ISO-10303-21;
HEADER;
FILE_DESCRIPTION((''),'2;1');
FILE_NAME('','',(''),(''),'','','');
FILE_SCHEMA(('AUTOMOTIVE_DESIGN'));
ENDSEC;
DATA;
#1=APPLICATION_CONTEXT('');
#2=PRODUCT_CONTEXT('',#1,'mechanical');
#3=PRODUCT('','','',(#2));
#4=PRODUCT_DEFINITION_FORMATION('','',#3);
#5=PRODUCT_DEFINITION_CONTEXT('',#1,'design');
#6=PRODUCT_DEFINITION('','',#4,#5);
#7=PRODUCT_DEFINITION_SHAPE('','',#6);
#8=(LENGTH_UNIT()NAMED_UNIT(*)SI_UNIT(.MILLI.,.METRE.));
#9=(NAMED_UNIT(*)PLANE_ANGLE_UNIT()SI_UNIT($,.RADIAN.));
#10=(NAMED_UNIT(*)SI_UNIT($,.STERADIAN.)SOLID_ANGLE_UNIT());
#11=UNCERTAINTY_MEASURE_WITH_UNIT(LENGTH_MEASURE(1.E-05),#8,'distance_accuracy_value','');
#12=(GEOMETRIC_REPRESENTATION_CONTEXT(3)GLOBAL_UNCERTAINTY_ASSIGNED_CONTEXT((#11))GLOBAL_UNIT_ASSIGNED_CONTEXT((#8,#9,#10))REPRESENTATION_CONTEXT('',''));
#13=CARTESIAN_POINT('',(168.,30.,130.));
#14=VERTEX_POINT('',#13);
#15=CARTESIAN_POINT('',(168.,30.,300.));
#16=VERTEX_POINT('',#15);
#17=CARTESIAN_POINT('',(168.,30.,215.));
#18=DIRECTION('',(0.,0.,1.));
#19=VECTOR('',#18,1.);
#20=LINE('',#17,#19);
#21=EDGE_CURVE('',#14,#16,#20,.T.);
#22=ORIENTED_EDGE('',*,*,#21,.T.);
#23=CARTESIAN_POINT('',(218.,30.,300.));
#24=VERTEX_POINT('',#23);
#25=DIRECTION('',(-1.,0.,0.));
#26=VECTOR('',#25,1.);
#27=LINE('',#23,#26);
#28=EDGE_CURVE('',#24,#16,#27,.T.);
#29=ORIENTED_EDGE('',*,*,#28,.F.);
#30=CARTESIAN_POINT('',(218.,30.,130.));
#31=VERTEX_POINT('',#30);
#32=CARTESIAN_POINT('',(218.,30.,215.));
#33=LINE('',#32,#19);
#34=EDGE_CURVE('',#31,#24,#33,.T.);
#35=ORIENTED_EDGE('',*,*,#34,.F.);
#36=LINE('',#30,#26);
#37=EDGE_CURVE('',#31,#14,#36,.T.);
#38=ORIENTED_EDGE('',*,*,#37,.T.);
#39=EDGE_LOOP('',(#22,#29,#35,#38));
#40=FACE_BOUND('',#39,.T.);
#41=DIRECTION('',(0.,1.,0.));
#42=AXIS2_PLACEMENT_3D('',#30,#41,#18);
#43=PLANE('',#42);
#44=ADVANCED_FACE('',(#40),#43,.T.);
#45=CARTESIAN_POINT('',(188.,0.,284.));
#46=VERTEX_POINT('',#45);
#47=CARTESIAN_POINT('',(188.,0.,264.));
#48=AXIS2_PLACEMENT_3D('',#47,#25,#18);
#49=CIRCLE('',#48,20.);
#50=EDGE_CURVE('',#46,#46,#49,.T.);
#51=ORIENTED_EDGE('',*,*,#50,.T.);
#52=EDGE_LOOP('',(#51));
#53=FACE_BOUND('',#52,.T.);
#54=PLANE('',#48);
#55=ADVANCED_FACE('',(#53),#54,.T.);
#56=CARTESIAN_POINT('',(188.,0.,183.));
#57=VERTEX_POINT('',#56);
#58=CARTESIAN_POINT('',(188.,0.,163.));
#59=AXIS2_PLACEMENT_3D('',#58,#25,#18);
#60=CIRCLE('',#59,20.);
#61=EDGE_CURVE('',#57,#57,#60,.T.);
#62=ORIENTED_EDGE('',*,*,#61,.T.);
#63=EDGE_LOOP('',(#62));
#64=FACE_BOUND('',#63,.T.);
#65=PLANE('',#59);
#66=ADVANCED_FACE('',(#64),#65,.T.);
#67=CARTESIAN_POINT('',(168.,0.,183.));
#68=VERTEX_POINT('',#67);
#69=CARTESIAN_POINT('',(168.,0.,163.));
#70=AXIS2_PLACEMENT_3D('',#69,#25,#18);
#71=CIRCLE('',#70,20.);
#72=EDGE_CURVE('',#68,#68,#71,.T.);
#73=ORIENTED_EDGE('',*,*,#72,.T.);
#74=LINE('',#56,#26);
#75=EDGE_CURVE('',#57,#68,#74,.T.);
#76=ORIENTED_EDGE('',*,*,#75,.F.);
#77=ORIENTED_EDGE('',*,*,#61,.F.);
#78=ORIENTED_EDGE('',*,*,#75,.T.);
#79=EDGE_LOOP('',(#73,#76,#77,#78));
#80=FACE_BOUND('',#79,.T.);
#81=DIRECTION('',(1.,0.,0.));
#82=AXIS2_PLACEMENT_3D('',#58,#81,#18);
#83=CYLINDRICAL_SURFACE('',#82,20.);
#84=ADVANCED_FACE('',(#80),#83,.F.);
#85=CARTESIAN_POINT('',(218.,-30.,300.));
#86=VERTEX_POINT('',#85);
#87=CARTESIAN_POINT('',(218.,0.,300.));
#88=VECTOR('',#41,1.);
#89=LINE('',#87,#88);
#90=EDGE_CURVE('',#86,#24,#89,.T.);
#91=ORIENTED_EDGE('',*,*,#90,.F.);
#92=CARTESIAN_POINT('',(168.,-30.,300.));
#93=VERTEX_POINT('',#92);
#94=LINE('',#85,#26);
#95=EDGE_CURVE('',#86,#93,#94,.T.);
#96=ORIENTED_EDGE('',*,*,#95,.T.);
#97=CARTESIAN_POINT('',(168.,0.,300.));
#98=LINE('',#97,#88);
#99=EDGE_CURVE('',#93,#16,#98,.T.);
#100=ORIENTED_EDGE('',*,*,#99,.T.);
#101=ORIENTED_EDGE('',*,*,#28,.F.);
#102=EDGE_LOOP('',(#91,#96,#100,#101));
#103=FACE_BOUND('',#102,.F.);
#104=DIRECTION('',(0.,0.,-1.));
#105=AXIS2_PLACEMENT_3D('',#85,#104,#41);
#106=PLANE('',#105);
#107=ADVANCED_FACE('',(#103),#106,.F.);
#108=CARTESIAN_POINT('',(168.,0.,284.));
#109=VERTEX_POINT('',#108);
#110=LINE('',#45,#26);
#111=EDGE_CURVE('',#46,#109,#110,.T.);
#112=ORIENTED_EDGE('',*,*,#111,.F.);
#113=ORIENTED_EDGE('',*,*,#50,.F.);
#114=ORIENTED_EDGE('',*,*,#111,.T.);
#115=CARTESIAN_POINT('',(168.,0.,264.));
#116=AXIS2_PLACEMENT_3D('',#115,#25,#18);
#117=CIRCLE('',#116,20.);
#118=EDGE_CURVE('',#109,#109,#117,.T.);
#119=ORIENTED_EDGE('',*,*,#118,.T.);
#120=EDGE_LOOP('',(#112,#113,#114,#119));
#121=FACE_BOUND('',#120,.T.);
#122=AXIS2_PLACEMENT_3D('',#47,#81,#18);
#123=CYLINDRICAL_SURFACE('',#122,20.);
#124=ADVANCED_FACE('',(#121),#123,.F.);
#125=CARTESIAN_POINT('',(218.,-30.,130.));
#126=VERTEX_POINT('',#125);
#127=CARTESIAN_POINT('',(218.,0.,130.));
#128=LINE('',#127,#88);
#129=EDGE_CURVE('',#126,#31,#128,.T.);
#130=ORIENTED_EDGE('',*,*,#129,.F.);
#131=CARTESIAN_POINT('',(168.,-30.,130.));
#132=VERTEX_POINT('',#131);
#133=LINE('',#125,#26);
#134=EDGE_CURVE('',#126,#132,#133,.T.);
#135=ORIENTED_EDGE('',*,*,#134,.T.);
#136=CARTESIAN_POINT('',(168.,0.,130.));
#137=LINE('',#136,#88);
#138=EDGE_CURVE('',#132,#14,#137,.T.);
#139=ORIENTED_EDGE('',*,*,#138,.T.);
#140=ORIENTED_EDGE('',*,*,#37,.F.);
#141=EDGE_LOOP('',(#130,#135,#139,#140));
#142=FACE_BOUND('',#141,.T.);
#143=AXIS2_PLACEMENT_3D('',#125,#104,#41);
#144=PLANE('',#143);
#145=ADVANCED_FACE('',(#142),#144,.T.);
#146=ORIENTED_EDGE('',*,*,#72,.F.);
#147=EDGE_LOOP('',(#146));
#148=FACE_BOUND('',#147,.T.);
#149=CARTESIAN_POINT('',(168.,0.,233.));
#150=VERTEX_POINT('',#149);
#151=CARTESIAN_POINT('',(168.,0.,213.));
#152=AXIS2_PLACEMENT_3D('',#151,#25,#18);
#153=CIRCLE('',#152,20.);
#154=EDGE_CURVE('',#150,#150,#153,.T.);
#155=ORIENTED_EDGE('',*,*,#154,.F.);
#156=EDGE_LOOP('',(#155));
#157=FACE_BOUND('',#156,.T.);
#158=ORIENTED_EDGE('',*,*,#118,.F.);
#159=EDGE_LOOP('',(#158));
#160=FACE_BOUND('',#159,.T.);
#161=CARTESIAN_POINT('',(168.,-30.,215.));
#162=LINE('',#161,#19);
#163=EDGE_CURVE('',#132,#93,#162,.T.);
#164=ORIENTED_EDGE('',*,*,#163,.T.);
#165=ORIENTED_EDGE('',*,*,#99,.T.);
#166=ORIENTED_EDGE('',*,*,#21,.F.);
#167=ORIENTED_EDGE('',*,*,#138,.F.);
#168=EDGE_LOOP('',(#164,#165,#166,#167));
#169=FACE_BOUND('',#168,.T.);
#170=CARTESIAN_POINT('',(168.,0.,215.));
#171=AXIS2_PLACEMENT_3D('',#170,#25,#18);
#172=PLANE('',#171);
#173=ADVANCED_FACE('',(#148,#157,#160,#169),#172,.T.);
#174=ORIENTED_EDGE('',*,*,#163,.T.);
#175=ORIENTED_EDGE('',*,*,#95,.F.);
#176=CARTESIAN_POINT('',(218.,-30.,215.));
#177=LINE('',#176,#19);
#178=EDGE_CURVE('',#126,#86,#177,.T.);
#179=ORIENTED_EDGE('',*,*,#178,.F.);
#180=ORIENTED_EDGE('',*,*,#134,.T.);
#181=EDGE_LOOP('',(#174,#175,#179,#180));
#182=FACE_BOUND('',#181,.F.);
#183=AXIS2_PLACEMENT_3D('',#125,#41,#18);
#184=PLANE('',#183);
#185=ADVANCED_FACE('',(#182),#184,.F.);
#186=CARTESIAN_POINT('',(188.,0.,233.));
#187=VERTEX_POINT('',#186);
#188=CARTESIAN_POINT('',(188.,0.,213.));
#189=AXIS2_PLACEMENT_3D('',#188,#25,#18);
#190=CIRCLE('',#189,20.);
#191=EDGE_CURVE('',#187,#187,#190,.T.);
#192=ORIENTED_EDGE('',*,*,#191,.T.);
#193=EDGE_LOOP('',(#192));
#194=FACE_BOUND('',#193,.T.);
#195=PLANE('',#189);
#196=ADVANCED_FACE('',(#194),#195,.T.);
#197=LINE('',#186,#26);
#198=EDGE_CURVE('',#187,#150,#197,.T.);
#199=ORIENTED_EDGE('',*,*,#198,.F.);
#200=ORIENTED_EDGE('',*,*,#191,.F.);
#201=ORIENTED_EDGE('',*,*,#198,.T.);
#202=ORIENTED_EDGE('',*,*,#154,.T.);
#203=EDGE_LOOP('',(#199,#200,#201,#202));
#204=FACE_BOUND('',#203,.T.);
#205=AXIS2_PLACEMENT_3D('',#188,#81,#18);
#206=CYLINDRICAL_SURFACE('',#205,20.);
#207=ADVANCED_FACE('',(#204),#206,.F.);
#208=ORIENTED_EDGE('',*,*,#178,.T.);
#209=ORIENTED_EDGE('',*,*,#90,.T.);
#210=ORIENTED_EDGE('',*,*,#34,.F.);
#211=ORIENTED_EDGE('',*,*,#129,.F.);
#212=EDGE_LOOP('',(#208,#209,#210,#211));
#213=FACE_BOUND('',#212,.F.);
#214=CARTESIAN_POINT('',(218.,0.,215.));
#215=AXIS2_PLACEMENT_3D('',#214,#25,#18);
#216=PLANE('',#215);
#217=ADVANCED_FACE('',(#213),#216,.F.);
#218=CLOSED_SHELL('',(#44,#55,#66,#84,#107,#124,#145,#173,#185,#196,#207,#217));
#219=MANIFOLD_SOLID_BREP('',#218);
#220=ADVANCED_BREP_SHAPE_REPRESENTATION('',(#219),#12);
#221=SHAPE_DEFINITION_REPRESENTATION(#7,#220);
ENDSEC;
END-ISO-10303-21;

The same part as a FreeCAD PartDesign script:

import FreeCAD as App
import Part
import Sketcher
from FreeCAD import Vector
Q = App.Units.Quantity


def add_polygon(sketch, points):
    """Adds a closed chain of lines whose ends are joined by coincident constraints."""
    first, n = sketch.GeometryCount, len(points)
    for a, b in zip(points, points[1:] + points[:1]):
        sketch.addGeometry(Part.LineSegment(App.Vector(*a, 0), App.Vector(*b, 0)), False)
    for i in range(n):
        sketch.addConstraint(Sketcher.Constraint("Coincident", first + i, 2, first + (i + 1) % n, 1))

doc = App.newDocument("Part")
body = doc.addObject("PartDesign::Body", "Body")

# Sketch on XY plane
sketch1 = doc.addObject("Sketcher::SketchObject", "Sketch")
body.addObject(sketch1)
sketch1.AttachmentSupport = (doc.XY_Plane, [""])
sketch1.MapMode = "FlatFace"
sketch1.AttachmentOffset = App.Placement(Vector(0, 0, 175), App.Rotation())
sketch1.addGeometry(Part.Circle(Vector(83, 579, 0), Vector(0, 0, 1), 20), False)
sketch1.addConstraint(Sketcher.Constraint("Diameter", 0, Q("40 mm")))
sketch1.addConstraint(Sketcher.Constraint("DistanceX", -1, 1, 0, 3, Q("83 mm")))
sketch1.addConstraint(Sketcher.Constraint("DistanceY", -1, 1, 0, 3, Q("579 mm")))
pad1 = doc.addObject("PartDesign::Pad", "Pad")
body.addObject(pad1)
pad1.Profile = sketch1
pad1.Length = 20
body2 = doc.addObject("PartDesign::Body", "Body001")

# Sketch on XY plane
sketch2 = doc.addObject("Sketcher::SketchObject", "Sketch001")
body2.addObject(sketch2)
sketch2.AttachmentSupport = (doc.getObject("XY_Plane001"), [""])
sketch2.MapMode = "FlatFace"
sketch2.AttachmentOffset = App.Placement(Vector(0, 0, 175), App.Rotation())
sketch2.addGeometry(Part.Circle(Vector(134, 579, 0), Vector(0, 0, 1), 20), False)
sketch2.addConstraint(Sketcher.Constraint("Diameter", 0, Q("40 mm")))
sketch2.addConstraint(Sketcher.Constraint("DistanceX", -1, 1, 0, 3, Q("134 mm")))
sketch2.addConstraint(Sketcher.Constraint("DistanceY", -1, 1, 0, 3, Q("579 mm")))
pad2 = doc.addObject("PartDesign::Pad", "Pad001")
body2.addObject(pad2)
pad2.Profile = sketch2
pad2.Length = 20
body3 = doc.addObject("PartDesign::Body", "Body002")

# Sketch on XY plane
sketch3 = doc.addObject("Sketcher::SketchObject", "Sketch002")
body3.addObject(sketch3)
sketch3.AttachmentSupport = (doc.getObject("XY_Plane002"), [""])
sketch3.MapMode = "FlatFace"
sketch3.AttachmentOffset = App.Placement(Vector(0, 0, 175), App.Rotation())
sketch3.addGeometry(Part.Circle(Vector(33, 579, 0), Vector(0, 0, 1), 20), False)
sketch3.addConstraint(Sketcher.Constraint("Diameter", 0, Q("40 mm")))
sketch3.addConstraint(Sketcher.Constraint("DistanceX", -1, 1, 0, 3, Q("33 mm")))
sketch3.addConstraint(Sketcher.Constraint("DistanceY", -1, 1, 0, 3, Q("579 mm")))
pad3 = doc.addObject("PartDesign::Pad", "Pad002")
body3.addObject(pad3)
pad3.Profile = sketch3
pad3.Length = 20
body4 = doc.addObject("PartDesign::Body", "Body003")

# Sketch on XY plane
sketch4 = doc.addObject("Sketcher::SketchObject", "Sketch003")
body4.addObject(sketch4)
sketch4.AttachmentSupport = (doc.getObject("XY_Plane003"), [""])
sketch4.MapMode = "FlatFace"
sketch4.AttachmentOffset = App.Placement(Vector(0, 0, 145), App.Rotation())
add_polygon(sketch4, [(0, 609), (0, 549), (170, 549), (170, 609)])  # lines 0-3
sketch4.addConstraint(Sketcher.Constraint("Vertical", 0))
sketch4.addConstraint(Sketcher.Constraint("Horizontal", 1))
sketch4.addConstraint(Sketcher.Constraint("Vertical", 2))
sketch4.addConstraint(Sketcher.Constraint("Horizontal", 3))
sketch4.addConstraint(Sketcher.Constraint("PointOnObject", 0, 2, -2))
sketch4.addConstraint(Sketcher.Constraint("DistanceX", 1, 1, 1, 2, Q("170 mm")))
sketch4.addConstraint(Sketcher.Constraint("DistanceY", 0, 2, 0, 1, Q("60 mm")))
sketch4.addConstraint(Sketcher.Constraint("DistanceY", -1, 1, 0, 2, Q("549 mm")))
pad4 = doc.addObject("PartDesign::Pad", "Pad003")
body4.addObject(pad4)
pad4.Profile = sketch4
pad4.Length = 50
doc.recompute()

boolean = doc.addObject("PartDesign::Boolean", "Boolean")
body4.addObject(boolean)
boolean.Type = "Cut"
boolean.addObjects([body3])
doc.recompute()

boolean2 = doc.addObject("PartDesign::Boolean", "Boolean001")
body4.addObject(boolean2)
boolean2.Type = "Cut"
boolean2.addObjects([body2])
doc.recompute()

boolean3 = doc.addObject("PartDesign::Boolean", "Boolean002")
body4.addObject(boolean3)
boolean3.Type = "Cut"
boolean3.addObjects([body])
body5 = doc.addObject("PartDesign::Body", "Body004")
doc.recompute()

body4.Placement = App.Placement(Vector(363, -579, 130), App.Rotation(Vector(0, -1, 0), 90))
boolean4 = doc.addObject("PartDesign::Boolean", "Boolean003")
body5.addObject(boolean4)
boolean4.Type = "Fuse"
boolean4.addObjects([body4])

doc.recompute()
